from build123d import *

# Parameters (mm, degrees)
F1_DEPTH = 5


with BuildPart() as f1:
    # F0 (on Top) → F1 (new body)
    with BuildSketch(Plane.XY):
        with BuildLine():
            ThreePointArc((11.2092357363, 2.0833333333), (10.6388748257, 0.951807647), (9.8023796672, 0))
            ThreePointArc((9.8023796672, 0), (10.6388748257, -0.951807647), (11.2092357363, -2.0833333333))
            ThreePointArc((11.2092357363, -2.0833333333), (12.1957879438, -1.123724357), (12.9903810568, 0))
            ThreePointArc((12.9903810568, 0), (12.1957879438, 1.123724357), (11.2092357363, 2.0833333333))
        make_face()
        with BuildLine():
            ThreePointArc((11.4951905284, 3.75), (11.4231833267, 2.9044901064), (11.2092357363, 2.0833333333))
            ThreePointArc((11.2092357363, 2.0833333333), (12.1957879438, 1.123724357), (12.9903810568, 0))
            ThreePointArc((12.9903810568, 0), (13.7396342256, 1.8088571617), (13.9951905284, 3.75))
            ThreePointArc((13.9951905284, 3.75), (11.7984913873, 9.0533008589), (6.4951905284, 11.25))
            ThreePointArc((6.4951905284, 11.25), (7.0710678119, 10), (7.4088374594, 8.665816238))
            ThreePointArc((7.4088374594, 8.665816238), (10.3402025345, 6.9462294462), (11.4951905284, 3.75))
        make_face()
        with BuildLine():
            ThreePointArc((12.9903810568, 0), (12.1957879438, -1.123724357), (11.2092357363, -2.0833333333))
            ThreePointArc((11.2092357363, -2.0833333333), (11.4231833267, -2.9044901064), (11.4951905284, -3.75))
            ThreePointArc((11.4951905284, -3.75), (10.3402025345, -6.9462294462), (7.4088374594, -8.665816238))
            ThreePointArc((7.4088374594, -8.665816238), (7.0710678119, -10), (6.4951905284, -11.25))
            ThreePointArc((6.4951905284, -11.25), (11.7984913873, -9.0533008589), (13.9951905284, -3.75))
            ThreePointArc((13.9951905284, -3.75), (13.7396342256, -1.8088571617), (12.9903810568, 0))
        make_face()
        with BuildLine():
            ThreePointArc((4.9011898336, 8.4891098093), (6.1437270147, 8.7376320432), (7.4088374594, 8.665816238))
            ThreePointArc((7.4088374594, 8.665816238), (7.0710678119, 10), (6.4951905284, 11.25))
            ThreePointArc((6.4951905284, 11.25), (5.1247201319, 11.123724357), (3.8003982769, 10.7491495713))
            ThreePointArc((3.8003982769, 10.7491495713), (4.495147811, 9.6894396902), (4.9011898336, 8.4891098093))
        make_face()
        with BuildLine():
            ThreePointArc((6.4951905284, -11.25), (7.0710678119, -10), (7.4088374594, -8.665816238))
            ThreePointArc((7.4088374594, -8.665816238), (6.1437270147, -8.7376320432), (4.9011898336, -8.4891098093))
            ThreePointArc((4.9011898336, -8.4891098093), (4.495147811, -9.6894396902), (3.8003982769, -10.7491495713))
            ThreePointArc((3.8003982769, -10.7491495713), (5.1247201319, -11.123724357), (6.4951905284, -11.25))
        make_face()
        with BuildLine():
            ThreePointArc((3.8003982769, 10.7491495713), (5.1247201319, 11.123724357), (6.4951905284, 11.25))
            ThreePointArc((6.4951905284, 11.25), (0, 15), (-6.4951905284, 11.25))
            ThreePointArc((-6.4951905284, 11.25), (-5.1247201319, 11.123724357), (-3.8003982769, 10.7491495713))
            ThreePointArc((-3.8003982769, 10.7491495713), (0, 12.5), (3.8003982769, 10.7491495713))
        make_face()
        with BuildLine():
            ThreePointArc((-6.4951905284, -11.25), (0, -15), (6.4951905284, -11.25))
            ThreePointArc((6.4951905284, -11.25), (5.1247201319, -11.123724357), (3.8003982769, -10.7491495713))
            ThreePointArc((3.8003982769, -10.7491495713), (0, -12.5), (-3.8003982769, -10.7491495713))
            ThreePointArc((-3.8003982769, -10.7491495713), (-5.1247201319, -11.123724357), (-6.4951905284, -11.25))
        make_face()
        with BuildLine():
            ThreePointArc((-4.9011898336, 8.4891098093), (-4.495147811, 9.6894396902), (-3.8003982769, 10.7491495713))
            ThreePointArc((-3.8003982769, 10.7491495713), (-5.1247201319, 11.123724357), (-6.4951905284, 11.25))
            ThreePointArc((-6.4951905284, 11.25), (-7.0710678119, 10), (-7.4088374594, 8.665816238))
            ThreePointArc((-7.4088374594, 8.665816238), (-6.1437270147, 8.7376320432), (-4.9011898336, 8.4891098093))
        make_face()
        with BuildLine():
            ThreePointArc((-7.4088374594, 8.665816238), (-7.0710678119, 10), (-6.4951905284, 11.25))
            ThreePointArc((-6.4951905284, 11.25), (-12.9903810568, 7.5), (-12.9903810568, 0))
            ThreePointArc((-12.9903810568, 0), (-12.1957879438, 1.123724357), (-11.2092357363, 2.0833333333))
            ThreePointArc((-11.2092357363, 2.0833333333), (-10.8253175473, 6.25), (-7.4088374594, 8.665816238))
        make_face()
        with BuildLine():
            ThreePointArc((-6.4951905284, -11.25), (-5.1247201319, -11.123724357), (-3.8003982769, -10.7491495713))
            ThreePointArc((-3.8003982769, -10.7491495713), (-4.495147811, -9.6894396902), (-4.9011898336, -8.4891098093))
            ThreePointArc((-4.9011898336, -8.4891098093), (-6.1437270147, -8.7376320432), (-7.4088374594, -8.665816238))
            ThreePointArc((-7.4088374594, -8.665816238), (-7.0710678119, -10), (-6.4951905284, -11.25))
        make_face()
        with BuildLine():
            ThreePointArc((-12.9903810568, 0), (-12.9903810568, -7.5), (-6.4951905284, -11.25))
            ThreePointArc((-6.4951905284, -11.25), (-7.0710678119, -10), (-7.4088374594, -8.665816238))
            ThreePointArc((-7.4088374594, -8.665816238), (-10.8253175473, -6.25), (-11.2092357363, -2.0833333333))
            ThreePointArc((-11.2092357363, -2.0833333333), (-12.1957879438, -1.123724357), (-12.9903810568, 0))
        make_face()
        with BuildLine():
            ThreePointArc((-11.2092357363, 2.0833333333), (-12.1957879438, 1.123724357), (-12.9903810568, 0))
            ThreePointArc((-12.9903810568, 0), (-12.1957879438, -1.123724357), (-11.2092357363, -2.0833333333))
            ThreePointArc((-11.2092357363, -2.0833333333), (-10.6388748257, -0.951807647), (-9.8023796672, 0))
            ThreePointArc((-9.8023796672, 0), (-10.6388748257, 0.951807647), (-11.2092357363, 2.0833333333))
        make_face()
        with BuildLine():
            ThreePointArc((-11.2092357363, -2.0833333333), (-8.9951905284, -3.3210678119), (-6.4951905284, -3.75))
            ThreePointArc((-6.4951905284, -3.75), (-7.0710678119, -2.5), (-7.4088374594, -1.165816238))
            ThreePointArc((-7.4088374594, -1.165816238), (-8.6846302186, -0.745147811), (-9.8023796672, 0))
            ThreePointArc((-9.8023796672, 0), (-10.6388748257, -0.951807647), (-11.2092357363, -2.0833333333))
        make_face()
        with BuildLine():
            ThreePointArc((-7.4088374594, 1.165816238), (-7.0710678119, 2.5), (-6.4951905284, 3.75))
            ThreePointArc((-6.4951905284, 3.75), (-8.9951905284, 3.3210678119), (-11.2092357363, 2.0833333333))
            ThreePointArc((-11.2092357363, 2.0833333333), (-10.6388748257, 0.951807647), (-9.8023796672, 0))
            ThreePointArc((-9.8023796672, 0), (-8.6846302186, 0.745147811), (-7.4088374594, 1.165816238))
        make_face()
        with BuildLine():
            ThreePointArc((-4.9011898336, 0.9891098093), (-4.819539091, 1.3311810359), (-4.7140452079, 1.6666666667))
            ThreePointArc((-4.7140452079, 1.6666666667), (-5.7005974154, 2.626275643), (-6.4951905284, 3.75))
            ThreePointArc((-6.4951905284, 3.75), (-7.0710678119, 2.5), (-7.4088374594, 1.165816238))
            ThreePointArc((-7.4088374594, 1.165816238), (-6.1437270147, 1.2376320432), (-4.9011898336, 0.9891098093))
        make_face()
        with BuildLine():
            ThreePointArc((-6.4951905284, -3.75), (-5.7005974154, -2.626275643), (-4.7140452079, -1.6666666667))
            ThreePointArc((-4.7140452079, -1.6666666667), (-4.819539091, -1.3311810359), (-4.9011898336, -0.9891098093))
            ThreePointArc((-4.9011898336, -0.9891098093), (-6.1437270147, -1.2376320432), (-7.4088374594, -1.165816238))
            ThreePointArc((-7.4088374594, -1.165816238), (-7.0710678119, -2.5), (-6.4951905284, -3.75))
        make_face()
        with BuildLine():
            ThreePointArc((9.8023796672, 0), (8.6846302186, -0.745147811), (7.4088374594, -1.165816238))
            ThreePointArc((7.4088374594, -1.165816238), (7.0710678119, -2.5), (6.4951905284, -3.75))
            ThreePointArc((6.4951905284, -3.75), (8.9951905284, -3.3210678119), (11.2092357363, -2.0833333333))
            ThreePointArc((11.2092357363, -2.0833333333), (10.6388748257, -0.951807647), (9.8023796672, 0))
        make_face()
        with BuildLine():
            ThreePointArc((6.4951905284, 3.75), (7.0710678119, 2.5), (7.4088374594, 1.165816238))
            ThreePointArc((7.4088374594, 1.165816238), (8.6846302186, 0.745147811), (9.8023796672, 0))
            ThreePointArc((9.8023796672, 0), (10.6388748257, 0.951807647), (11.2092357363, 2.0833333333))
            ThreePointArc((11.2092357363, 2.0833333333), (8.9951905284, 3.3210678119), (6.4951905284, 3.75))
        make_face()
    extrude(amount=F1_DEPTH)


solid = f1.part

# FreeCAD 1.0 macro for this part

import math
import FreeCAD as App
import Part
import Sketcher

doc = App.newDocument("Part")
params = doc.addObject("Spreadsheet::Sheet", "Params")
for row, (alias, value) in enumerate([
    ("sketch1_radius", "5 mm"),
    ("sketch1_radius2", "7.5 mm"),
    ("pad1_length", "5 mm"),
], start=1):
    params.set(f"A{row}", alias)
    params.set(f"B{row}", "=" + value)
    params.setAlias(f"B{row}", alias)

body = doc.addObject("PartDesign::Body", "Body")

# Sketch on XY plane
sketch1 = doc.addObject("Sketcher::SketchObject", "Sketch")
body.addObject(sketch1)
sketch1.AttachmentSupport = (doc.XY_Plane, [""])
sketch1.MapMode = "FlatFace"
sketch1.addGeometry(Part.ArcOfCircle(Part.Circle(App.Vector(-6.5, 3.8, 0), App.Vector(0, 0, 1), 7.5), math.radians(90), math.radians(210)), False)
sketch1.addGeometry(Part.ArcOfCircle(Part.Circle(App.Vector(-6.5, -3.8, 0), App.Vector(0, 0, 1), 7.5), math.radians(150), math.radians(270)), False)
sketch1.addGeometry(Part.ArcOfCircle(Part.Circle(App.Vector(0, -7.5, 0), App.Vector(0, 0, 1), 7.5), math.radians(-150), math.radians(-30)), False)
sketch1.addGeometry(Part.ArcOfCircle(Part.Circle(App.Vector(6.5, -3.8, 0), App.Vector(0, 0, 1), 7.5), math.radians(-90), math.radians(0)), False)
sketch1.addGeometry(Part.ArcOfCircle(Part.Circle(App.Vector(6.5, -3.8, 0), App.Vector(0, 0, 1), 7.5), math.radians(0), math.radians(30)), False)
sketch1.addGeometry(Part.ArcOfCircle(Part.Circle(App.Vector(6.5, 3.8, 0), App.Vector(0, 0, 1), 7.5), math.radians(-30), math.radians(0)), False)
sketch1.addGeometry(Part.ArcOfCircle(Part.Circle(App.Vector(6.5, 3.8, 0), App.Vector(0, 0, 1), 7.5), math.radians(0), math.radians(90)), False)
sketch1.addGeometry(Part.ArcOfCircle(Part.Circle(App.Vector(0, 7.5, 0), App.Vector(0, 0, 1), 7.5), math.radians(30), math.radians(150)), False)
sketch1.addGeometry(Part.ArcOfCircle(Part.Circle(App.Vector(-6.5, -3.8, 0), App.Vector(0, 0, 1), 5), math.radians(161), math.radians(259)), False)
sketch1.addGeometry(Part.ArcOfCircle(Part.Circle(App.Vector(-6.5, 3.7, 0), App.Vector(0, 0, 1), 7.5), math.radians(-129), math.radians(-90)), False)
sketch1.addGeometry(Part.ArcOfCircle(Part.Circle(App.Vector(0, -7.5, 0), App.Vector(0, 0, 1), 7.5), math.radians(129), math.radians(150)), False)
sketch1.addGeometry(Part.ArcOfCircle(Part.Circle(App.Vector(0, 0, 0), App.Vector(0, 0, 1), 5), math.radians(-168.59), math.radians(-160.53)), False)
sketch1.addGeometry(Part.ArcOfCircle(Part.Circle(App.Vector(-6.5, 3.8, 0), App.Vector(0, 0, 1), 5), math.radians(-101), math.radians(-71)), False)
sketch1.addGeometry(Part.ArcOfCircle(Part.Circle(App.Vector(-6.5, 3.8, 0), App.Vector(0, 0, 1), 5), math.radians(-131), math.radians(-101)), False)
sketch1.addGeometry(Part.ArcOfCircle(Part.Circle(App.Vector(-6.5, -3.8, 0), App.Vector(0, 0, 1), 5), math.radians(101), math.radians(131)), False)
sketch1.addGeometry(Part.ArcOfCircle(Part.Circle(App.Vector(-6.5, -3.8, 0), App.Vector(0, 0, 1), 5), math.radians(71), math.radians(101)), False)
sketch1.addGeometry(Part.ArcOfCircle(Part.Circle(App.Vector(0, 0, 0), App.Vector(0, 0, 1), 5), math.radians(160.53), math.radians(168.59)), False)
sketch1.addGeometry(Part.ArcOfCircle(Part.Circle(App.Vector(0, 7.5, 0), App.Vector(0, 0, 1), 7.5), math.radians(-150), math.radians(-129)), False)
sketch1.addGeometry(Part.ArcOfCircle(Part.Circle(App.Vector(-6.5, -3.7, 0), App.Vector(0, 0, 1), 7.5), math.radians(90), math.radians(129)), False)
sketch1.addGeometry(Part.ArcOfCircle(Part.Circle(App.Vector(-6.5, 3.8, 0), App.Vector(0, 0, 1), 5), math.radians(101), math.radians(199)), False)
sketch1.addGeometry(Part.ArcOfCircle(Part.Circle(App.Vector(-6.5, 3.8, 0), App.Vector(0, 0, 1), 5), math.radians(71), math.radians(101)), False)
sketch1.addGeometry(Part.ArcOfCircle(Part.Circle(App.Vector(0, 7.5, 0), App.Vector(0, 0, 1), 5), math.radians(139), math.radians(169)), False)
sketch1.addGeometry(Part.ArcOfCircle(Part.Circle(App.Vector(0, 7.5, 0), App.Vector(0, 0, 1), 5), math.radians(41), math.radians(139)), False)
sketch1.addGeometry(Part.ArcOfCircle(Part.Circle(App.Vector(0, 7.5, 0), App.Vector(0, 0, 1), 5), math.radians(11), math.radians(41)), False)
sketch1.addGeometry(Part.ArcOfCircle(Part.Circle(App.Vector(6.5, 3.8, 0), App.Vector(0, 0, 1), 5), math.radians(79), math.radians(109)), False)
sketch1.addGeometry(Part.ArcOfCircle(Part.Circle(App.Vector(6.5, 3.8, 0), App.Vector(0, 0, 1), 5), math.radians(0), math.radians(79)), False)
sketch1.addGeometry(Part.ArcOfCircle(Part.Circle(App.Vector(6.5, 3.8, 0), App.Vector(0, 0, 1), 5), math.radians(-19.47), math.radians(0)), False)
sketch1.addGeometry(Part.ArcOfCircle(Part.Circle(App.Vector(6.5, -3.7, 0), App.Vector(0, 0, 1), 7.5), math.radians(51), math.radians(90)), False)
sketch1.addGeometry(Part.ArcOfCircle(Part.Circle(App.Vector(0, 0, 0), App.Vector(0, 0, 1), 7.5), math.radians(9), math.radians(30)), False)
sketch1.addGeometry(Part.ArcOfCircle(Part.Circle(App.Vector(6.5, -3.8, 0), App.Vector(0, 0, 1), 5), math.radians(49), math.radians(79)), False)
sketch1.addGeometry(Part.ArcOfCircle(Part.Circle(App.Vector(6.5, 3.8, 0), App.Vector(0, 0, 1), 5), math.radians(-79), math.radians(-49)), False)
sketch1.addGeometry(Part.ArcOfCircle(Part.Circle(App.Vector(0, 0, 0), App.Vector(0, 0, 1), 7.5), math.radians(-30), math.radians(-9)), False)
sketch1.addGeometry(Part.ArcOfCircle(Part.Circle(App.Vector(6.5, 3.7, 0), App.Vector(0, 0, 1), 7.5), math.radians(-90), math.radians(-51)), False)
sketch1.addGeometry(Part.ArcOfCircle(Part.Circle(App.Vector(6.5, -3.8, 0), App.Vector(0, 0, 1), 5), math.radians(0), math.radians(19.47)), False)
sketch1.addGeometry(Part.ArcOfCircle(Part.Circle(App.Vector(6.5, -3.8, 0), App.Vector(0, 0, 1), 5), math.radians(-79), math.radians(0)), False)
sketch1.addGeometry(Part.ArcOfCircle(Part.Circle(App.Vector(6.5, -3.8, 0), App.Vector(0, 0, 1), 5), math.radians(-109), math.radians(-79)), False)
sketch1.addGeometry(Part.ArcOfCircle(Part.Circle(App.Vector(0, -7.5, 0), App.Vector(0, 0, 1), 5), math.radians(-41), math.radians(-11)), False)
sketch1.addGeometry(Part.ArcOfCircle(Part.Circle(App.Vector(0, -7.5, 0), App.Vector(0, 0, 1), 5), math.radians(-139), math.radians(-41)), False)
sketch1.addGeometry(Part.ArcOfCircle(Part.Circle(App.Vector(0, -7.5, 0), App.Vector(0, 0, 1), 5), math.radians(-169), math.radians(-139)), False)
sketch1.addGeometry(Part.ArcOfCircle(Part.Circle(App.Vector(-6.5, -3.8, 0), App.Vector(0, 0, 1), 5), math.radians(-101), math.radians(-71)), False)
sketch1.addConstraint(Sketcher.Constraint("Coincident", 0, 2, 1, 1))
sketch1.addConstraint(Sketcher.Constraint("Coincident", 1, 2, 2, 1))
sketch1.addConstraint(Sketcher.Constraint("Coincident", 2, 2, 3, 1))
sketch1.addConstraint(Sketcher.Constraint("Tangent", 3, 2, 4, 1))
sketch1.addConstraint(Sketcher.Constraint("Coincident", 4, 2, 5, 1))
sketch1.addConstraint(Sketcher.Constraint("Tangent", 5, 2, 6, 1))
sketch1.addConstraint(Sketcher.Constraint("Coincident", 6, 2, 7, 1))
sketch1.addConstraint(Sketcher.Constraint("Coincident", 7, 2, 0, 1))
sketch1.addConstraint(Sketcher.Constraint("Coincident", 8, 1, 9, 1))
sketch1.addConstraint(Sketcher.Constraint("Coincident", 9, 2, 10, 2))
sketch1.addConstraint(Sketcher.Constraint("Coincident", 10, 1, 11, 2))
sketch1.addConstraint(Sketcher.Constraint("Coincident", 11, 1, 12, 2))
sketch1.addConstraint(Sketcher.Constraint("Tangent", 12, 1, 13, 2))
sketch1.addConstraint(Sketcher.Constraint("Coincident", 13, 1, 14, 2))
sketch1.addConstraint(Sketcher.Constraint("Tangent", 14, 1, 15, 2))
sketch1.addConstraint(Sketcher.Constraint("Coincident", 15, 1, 16, 2))
sketch1.addConstraint(Sketcher.Constraint("Coincident", 16, 1, 17, 2))
sketch1.addConstraint(Sketcher.Constraint("Coincident", 17, 1, 18, 1))
sketch1.addConstraint(Sketcher.Constraint("Coincident", 18, 2, 19, 2))
sketch1.addConstraint(Sketcher.Constraint("Tangent", 19, 1, 20, 2))
sketch1.addConstraint(Sketcher.Constraint("Coincident", 20, 1, 21, 2))
sketch1.addConstraint(Sketcher.Constraint("Tangent", 21, 1, 22, 2))
sketch1.addConstraint(Sketcher.Constraint("Tangent", 22, 1, 23, 2))
sketch1.addConstraint(Sketcher.Constraint("Coincident", 23, 1, 24, 2))
sketch1.addConstraint(Sketcher.Constraint("Tangent", 24, 1, 25, 2))
sketch1.addConstraint(Sketcher.Constraint("Tangent", 25, 1, 26, 2))
sketch1.addConstraint(Sketcher.Constraint("Coincident", 26, 1, 27, 1))
sketch1.addConstraint(Sketcher.Constraint("Coincident", 27, 2, 28, 2))
sketch1.addConstraint(Sketcher.Constraint("Coincident", 28, 1, 29, 2))
sketch1.addConstraint(Sketcher.Constraint("Coincident", 29, 1, 30, 2))
sketch1.addConstraint(Sketcher.Constraint("Coincident", 30, 1, 31, 2))
sketch1.addConstraint(Sketcher.Constraint("Coincident", 31, 1, 32, 1))
sketch1.addConstraint(Sketcher.Constraint("Coincident", 32, 2, 33, 2))
sketch1.addConstraint(Sketcher.Constraint("Tangent", 33, 1, 34, 2))
sketch1.addConstraint(Sketcher.Constraint("Tangent", 34, 1, 35, 2))
sketch1.addConstraint(Sketcher.Constraint("Coincident", 35, 1, 36, 2))
sketch1.addConstraint(Sketcher.Constraint("Tangent", 36, 1, 37, 2))
sketch1.addConstraint(Sketcher.Constraint("Tangent", 37, 1, 38, 2))
sketch1.addConstraint(Sketcher.Constraint("Coincident", 38, 1, 39, 2))
sketch1.addConstraint(Sketcher.Constraint("Tangent", 39, 1, 8, 2))
sketch1.addConstraint(Sketcher.Constraint("Coincident", 11, 3, -1, 1))
sketch1.addConstraint(Sketcher.Constraint("Coincident", 16, 3, -1, 1))
sketch1.addConstraint(Sketcher.Constraint("Coincident", 28, 3, -1, 1))
sketch1.addConstraint(Sketcher.Constraint("Coincident", 31, 3, -1, 1))
sketch1.addConstraint(Sketcher.Constraint("Coincident", 8, 3, 1, 3))
sketch1.addConstraint(Sketcher.Constraint("Coincident", 9, 3, 0, 3))
sketch1.addConstraint(Sketcher.Constraint("Coincident", 10, 3, 2, 3))
sketch1.addConstraint(Sketcher.Constraint("Coincident", 12, 3, 0, 3))
sketch1.addConstraint(Sketcher.Constraint("Coincident", 14, 3, 1, 3))
sketch1.addConstraint(Sketcher.Constraint("Coincident", 17, 3, 7, 3))
sketch1.addConstraint(Sketcher.Constraint("Coincident", 18, 3, 1, 3))
sketch1.addConstraint(Sketcher.Constraint("Coincident", 19, 3, 0, 3))
sketch1.addConstraint(Sketcher.Constraint("Coincident", 21, 3, 7, 3))
sketch1.addConstraint(Sketcher.Constraint("Coincident", 23, 3, 7, 3))
sketch1.addConstraint(Sketcher.Constraint("Coincident", 24, 3, 5, 3))
sketch1.addConstraint(Sketcher.Constraint("Coincident", 26, 3, 5, 3))
sketch1.addConstraint(Sketcher.Constraint("Coincident", 27, 3, 3, 3))
sketch1.addConstraint(Sketcher.Constraint("Coincident", 29, 3, 3, 3))
sketch1.addConstraint(Sketcher.Constraint("Coincident", 30, 3, 5, 3))
sketch1.addConstraint(Sketcher.Constraint("Coincident", 32, 3, 5, 3))
sketch1.addConstraint(Sketcher.Constraint("Coincident", 33, 3, 3, 3))
sketch1.addConstraint(Sketcher.Constraint("Coincident", 35, 3, 3, 3))
sketch1.addConstraint(Sketcher.Constraint("Coincident", 36, 3, 2, 3))
sketch1.addConstraint(Sketcher.Constraint("Coincident", 38, 3, 2, 3))
sketch1.addConstraint(Sketcher.Constraint("Coincident", 9, 2, 1, 3))
sketch1.addConstraint(Sketcher.Constraint("Coincident", 17, 1, 0, 3))
sketch1.addConstraint(Sketcher.Constraint("Coincident", 27, 2, 5, 3))
sketch1.addConstraint(Sketcher.Constraint("Coincident", 31, 1, 3, 3))
sketch1.addConstraint(Sketcher.Constraint("Equal", 0, 1))
sketch1.addConstraint(Sketcher.Constraint("Equal", 1, 2))
sketch1.addConstraint(Sketcher.Constraint("Equal", 2, 3))
sketch1.addConstraint(Sketcher.Constraint("Equal", 3, 4))
sketch1.addConstraint(Sketcher.Constraint("Equal", 4, 5))
sketch1.addConstraint(Sketcher.Constraint("Equal", 5, 6))
sketch1.addConstraint(Sketcher.Constraint("Equal", 6, 7))
sketch1.addConstraint(Sketcher.Constraint("Equal", 7, 9))
sketch1.addConstraint(Sketcher.Constraint("Equal", 9, 10))
sketch1.addConstraint(Sketcher.Constraint("Equal", 8, 11))
sketch1.addConstraint(Sketcher.Constraint("Equal", 11, 12))
sketch1.addConstraint(Sketcher.Constraint("Equal", 12, 13))
sketch1.addConstraint(Sketcher.Constraint("Equal", 13, 14))
sketch1.addConstraint(Sketcher.Constraint("Equal", 14, 15))
sketch1.addConstraint(Sketcher.Constraint("Equal", 15, 16))
sketch1.addConstraint(Sketcher.Constraint("Equal", 10, 17))
sketch1.addConstraint(Sketcher.Constraint("Equal", 16, 19))
sketch1.addConstraint(Sketcher.Constraint("Equal", 19, 20))
sketch1.addConstraint(Sketcher.Constraint("Equal", 20, 21))
sketch1.addConstraint(Sketcher.Constraint("Equal", 23, 24))
sketch1.addConstraint(Sketcher.Constraint("Equal", 18, 27))
sketch1.addConstraint(Sketcher.Constraint("Equal", 27, 28))
sketch1.addConstraint(Sketcher.Constraint("Equal", 26, 29))
sketch1.addConstraint(Sketcher.Constraint("Equal", 29, 30))
sketch1.addConstraint(Sketcher.Constraint("Equal", 28, 31))
sketch1.addConstraint(Sketcher.Constraint("Equal", 30, 33))
sketch1.addConstraint(Sketcher.Constraint("Equal", 35, 36))
sketch1.addConstraint(Sketcher.Constraint("Equal", 38, 39))
sketch1.addConstraint(Sketcher.Constraint("Symmetric", 0, 3, 3, 3, -1, 1))
sketch1.addConstraint(Sketcher.Constraint("Symmetric", 2, 3, 7, 3, -1, 1))
sketch1.addConstraint(Sketcher.Constraint("Symmetric", 14, 1, 30, 1, -1, 1))
sketch1.addConstraint(Sketcher.Constraint("Symmetric", 21, 1, 22, 1, -2))
sketch1.addConstraint(Sketcher.Constraint("Horizontal", 39, 3, 3, 2))
sketch1.addConstraint(Sketcher.Constraint("Horizontal", 32, 3, 5, 2))
sketch1.addConstraint(Sketcher.Constraint("Horizontal", 19, 1, 24, 1))
sketch1.addConstraint(Sketcher.Constraint("Horizontal", 17, 1, 25, 1))
sketch1.addConstraint(Sketcher.Constraint("Horizontal", 12, 1, 30, 1))
sketch1.addConstraint(Sketcher.Constraint("Horizontal", 31, 1, 33, 1))
sketch1.addConstraint(Sketcher.Constraint("Horizontal", 36, 1, 37, 1))
sketch1.addConstraint(Sketcher.Constraint("Horizontal", 34, 1, 39, 1))
sketch1.addConstraint(Sketcher.Constraint("Vertical", 14, 1, 19, 1))
sketch1.addConstraint(Sketcher.Constraint("Vertical", 30, 1, 34, 1))
sketch1.addConstraint(Sketcher.Constraint("Vertical", 22, 1, 36, 1))
sketch1.addConstraint(Sketcher.Constraint("Radius", 8, 5.0))
sketch1.addConstraint(Sketcher.Constraint("Radius", 0, 7.5))
sketch1.addConstraint(Sketcher.Constraint("DistanceX", 21, 1, -1, 1, 3.800398))
sketch1.setExpression("Constraints[111]", "Params.sketch1_radius")
sketch1.setExpression("Constraints[112]", "Params.sketch1_radius2")
pad1 = doc.addObject("PartDesign::Pad", "Pad")
body.addObject(pad1)
pad1.Profile = sketch1
pad1.setExpression("Length", "Params.pad1_length")

doc.recompute()
